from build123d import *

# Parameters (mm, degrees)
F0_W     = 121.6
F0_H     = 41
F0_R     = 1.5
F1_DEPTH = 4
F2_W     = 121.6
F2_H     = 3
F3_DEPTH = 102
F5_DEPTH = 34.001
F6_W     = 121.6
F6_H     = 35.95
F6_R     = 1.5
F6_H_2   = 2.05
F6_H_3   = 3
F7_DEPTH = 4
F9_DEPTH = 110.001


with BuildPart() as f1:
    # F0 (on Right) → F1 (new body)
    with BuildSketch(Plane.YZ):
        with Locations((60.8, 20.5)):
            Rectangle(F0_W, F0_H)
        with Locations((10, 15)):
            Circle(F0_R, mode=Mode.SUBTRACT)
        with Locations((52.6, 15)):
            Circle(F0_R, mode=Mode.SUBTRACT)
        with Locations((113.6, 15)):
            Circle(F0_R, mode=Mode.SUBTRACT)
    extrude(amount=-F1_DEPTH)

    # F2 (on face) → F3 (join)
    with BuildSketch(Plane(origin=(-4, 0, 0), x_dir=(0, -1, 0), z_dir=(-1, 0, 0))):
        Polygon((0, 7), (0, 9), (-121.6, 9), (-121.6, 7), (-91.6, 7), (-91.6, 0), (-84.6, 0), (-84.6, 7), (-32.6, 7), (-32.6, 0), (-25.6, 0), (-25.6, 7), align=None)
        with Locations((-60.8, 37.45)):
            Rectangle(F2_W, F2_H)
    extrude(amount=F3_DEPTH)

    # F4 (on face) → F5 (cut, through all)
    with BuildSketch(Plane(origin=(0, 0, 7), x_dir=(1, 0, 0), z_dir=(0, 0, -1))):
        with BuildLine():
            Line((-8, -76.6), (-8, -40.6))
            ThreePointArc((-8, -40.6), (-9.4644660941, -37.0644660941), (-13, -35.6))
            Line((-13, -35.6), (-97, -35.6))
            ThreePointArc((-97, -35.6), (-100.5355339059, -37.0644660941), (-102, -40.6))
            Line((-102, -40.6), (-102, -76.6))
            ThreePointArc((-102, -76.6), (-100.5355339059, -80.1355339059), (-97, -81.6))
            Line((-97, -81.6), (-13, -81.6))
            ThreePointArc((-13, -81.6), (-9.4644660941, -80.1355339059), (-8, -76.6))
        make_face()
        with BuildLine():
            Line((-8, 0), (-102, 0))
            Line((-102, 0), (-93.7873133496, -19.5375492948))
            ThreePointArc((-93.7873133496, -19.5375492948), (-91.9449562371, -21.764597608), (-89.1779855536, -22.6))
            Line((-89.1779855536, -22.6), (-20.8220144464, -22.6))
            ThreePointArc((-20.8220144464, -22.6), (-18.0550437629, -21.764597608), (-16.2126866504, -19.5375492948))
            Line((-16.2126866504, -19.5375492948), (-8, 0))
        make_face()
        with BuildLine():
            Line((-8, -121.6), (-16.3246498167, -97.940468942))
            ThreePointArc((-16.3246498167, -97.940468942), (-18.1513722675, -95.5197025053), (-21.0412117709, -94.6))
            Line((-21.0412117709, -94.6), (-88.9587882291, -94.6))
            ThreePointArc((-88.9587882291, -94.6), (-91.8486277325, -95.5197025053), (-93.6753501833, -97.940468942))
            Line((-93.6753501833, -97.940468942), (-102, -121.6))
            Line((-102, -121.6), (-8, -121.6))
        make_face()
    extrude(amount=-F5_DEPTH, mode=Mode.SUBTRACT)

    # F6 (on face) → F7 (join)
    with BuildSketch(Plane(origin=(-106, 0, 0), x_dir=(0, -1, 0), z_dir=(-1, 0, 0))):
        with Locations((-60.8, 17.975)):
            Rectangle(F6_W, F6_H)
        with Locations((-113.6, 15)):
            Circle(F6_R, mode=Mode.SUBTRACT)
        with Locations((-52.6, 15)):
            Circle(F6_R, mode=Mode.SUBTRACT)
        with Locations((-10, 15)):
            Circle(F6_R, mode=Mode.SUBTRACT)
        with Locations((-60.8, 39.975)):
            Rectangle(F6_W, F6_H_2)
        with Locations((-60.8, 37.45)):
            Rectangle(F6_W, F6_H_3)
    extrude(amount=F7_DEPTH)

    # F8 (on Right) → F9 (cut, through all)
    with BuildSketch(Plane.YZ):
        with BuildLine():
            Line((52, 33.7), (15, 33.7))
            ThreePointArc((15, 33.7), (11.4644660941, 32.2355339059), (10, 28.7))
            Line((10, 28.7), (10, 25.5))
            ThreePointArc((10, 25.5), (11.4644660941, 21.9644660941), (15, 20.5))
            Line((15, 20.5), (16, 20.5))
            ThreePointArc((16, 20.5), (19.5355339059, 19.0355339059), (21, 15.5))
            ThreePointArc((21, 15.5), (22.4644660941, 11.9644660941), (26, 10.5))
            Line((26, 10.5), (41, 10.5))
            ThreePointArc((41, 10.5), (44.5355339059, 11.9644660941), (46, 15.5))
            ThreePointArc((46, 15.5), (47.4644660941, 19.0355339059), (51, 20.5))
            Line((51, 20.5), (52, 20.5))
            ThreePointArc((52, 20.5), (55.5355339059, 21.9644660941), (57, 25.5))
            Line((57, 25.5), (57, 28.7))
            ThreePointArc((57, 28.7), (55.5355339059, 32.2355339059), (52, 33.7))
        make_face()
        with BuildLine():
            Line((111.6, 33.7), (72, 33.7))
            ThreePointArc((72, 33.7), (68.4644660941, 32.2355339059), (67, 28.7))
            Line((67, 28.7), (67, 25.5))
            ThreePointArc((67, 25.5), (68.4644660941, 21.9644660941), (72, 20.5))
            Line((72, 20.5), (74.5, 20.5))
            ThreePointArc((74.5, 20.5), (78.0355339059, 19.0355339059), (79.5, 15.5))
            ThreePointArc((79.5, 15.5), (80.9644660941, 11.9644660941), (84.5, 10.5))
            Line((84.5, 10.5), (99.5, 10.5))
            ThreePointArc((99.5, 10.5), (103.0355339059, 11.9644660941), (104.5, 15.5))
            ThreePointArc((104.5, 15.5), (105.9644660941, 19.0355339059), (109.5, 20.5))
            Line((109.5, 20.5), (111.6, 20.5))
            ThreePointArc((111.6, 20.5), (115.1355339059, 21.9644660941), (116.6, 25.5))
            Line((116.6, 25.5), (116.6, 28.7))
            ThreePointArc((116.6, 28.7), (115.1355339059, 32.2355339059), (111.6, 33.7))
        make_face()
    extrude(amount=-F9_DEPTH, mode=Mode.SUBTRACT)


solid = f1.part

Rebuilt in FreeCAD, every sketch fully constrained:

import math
import FreeCAD as App
import Part
import Sketcher
from FreeCAD import Vector
Q = App.Units.Quantity


def add_polygon(sketch, points):
    """Adds a closed chain of lines whose ends are joined by coincident constraints."""
    first, n = sketch.GeometryCount, len(points)
    for a, b in zip(points, points[1:] + points[:1]):
        sketch.addGeometry(Part.LineSegment(App.Vector(*a, 0), App.Vector(*b, 0)), False)
    for i in range(n):
        sketch.addConstraint(Sketcher.Constraint("Coincident", first + i, 2, first + (i + 1) % n, 1))

doc = App.newDocument("Part")
body = doc.addObject("PartDesign::Body", "Body")

sketch1 = body.newObject("Sketcher::SketchObject", "Sketch")
sketch1.AttachmentSupport = (doc.getObject("YZ_Plane"), [""])
sketch1.MapMode = "FlatFace"
add_polygon(sketch1, [(0, 41), (0, 0), (121.6, 0), (121.6, 41)])
sketch1.addGeometry(Part.Circle(Vector(10, 15, 0), Vector(0, 0, 1), 1.5), False)
sketch1.addGeometry(Part.Circle(Vector(52.6, 15, 0), Vector(0, 0, 1), 1.5), False)
sketch1.addGeometry(Part.Circle(Vector(113.6, 15, 0), Vector(0, 0, 1), 1.5), False)
sketch1.addConstraint(Sketcher.Constraint("Vertical", 0))
sketch1.addConstraint(Sketcher.Constraint("Horizontal", 1))
sketch1.addConstraint(Sketcher.Constraint("Vertical", 2))
sketch1.addConstraint(Sketcher.Constraint("Horizontal", 3))
sketch1.addConstraint(Sketcher.Constraint("Coincident", 0, 2, -1, 1))
sketch1.addConstraint(Sketcher.Constraint("Equal", 4, 5))
sketch1.addConstraint(Sketcher.Constraint("Equal", 5, 6))
sketch1.addConstraint(Sketcher.Constraint("Horizontal", 4, 3, 5, 3))
sketch1.addConstraint(Sketcher.Constraint("Horizontal", 5, 3, 6, 3))
sketch1.addConstraint(Sketcher.Constraint("Diameter", 4, Q("3 mm")))
sketch1.addConstraint(Sketcher.Constraint("DistanceY", 0, 2, 0, 1, Q("41 mm")))
sketch1.addConstraint(Sketcher.Constraint("DistanceX", 1, 1, 1, 2, Q("121.6 mm")))
sketch1.addConstraint(Sketcher.Constraint("DistanceX", -1, 1, 4, 3, Q("10 mm")))
sketch1.addConstraint(Sketcher.Constraint("DistanceY", -1, 1, 4, 3, Q("15 mm")))
sketch1.addConstraint(Sketcher.Constraint("DistanceX", 5, 3, 6, 3, Q("61 mm")))
sketch1.addConstraint(Sketcher.Constraint("DistanceX", 6, 3, 1, 2, Q("8 mm")))
pad1 = body.newObject("PartDesign::Pad", "Pad")
pad1.Profile = sketch1
pad1.Length = 4
pad1.Reversed = True

sketch2 = body.newObject("Sketcher::SketchObject", "Sketch001")
sketch2.AttachmentSupport = (doc.getObject("YZ_Plane"), [""])
sketch2.MapMode = "FlatFace"
sketch2.AttachmentOffset = App.Placement(Vector(0, 0, -4), App.Rotation())
add_polygon(sketch2, [(0, 7), (0, 9), (121.6, 9), (121.6, 7), (91.6, 7), (91.6, 0), (84.6, 0), (84.6, 7), (32.6, 7), (32.6, 0), (25.6, 0), (25.6, 7)])
add_polygon(sketch2, [(121.6, 38.95), (121.6, 35.95), (0, 35.95), (0, 38.95)])
sketch2.addConstraint(Sketcher.Constraint("Vertical", 0))
sketch2.addConstraint(Sketcher.Constraint("Horizontal", 1))
sketch2.addConstraint(Sketcher.Constraint("Vertical", 2))
sketch2.addConstraint(Sketcher.Constraint("Horizontal", 3))
sketch2.addConstraint(Sketcher.Constraint("Vertical", 4))
sketch2.addConstraint(Sketcher.Constraint("Horizontal", 5))
sketch2.addConstraint(Sketcher.Constraint("Vertical", 6))
sketch2.addConstraint(Sketcher.Constraint("Horizontal", 7))
sketch2.addConstraint(Sketcher.Constraint("Vertical", 8))
sketch2.addConstraint(Sketcher.Constraint("Horizontal", 9))
sketch2.addConstraint(Sketcher.Constraint("Vertical", 10))
sketch2.addConstraint(Sketcher.Constraint("Horizontal", 11))
sketch2.addConstraint(Sketcher.Constraint("Vertical", 12))
sketch2.addConstraint(Sketcher.Constraint("Horizontal", 13))
sketch2.addConstraint(Sketcher.Constraint("Vertical", 14))
sketch2.addConstraint(Sketcher.Constraint("Horizontal", 15))
sketch2.addConstraint(Sketcher.Constraint("PointOnObject", 0, 2, -2))
sketch2.addConstraint(Sketcher.Constraint("PointOnObject", 4, 2, -1))
sketch2.addConstraint(Sketcher.Constraint("PointOnObject", 8, 2, -1))
sketch2.addConstraint(Sketcher.Constraint("PointOnObject", 13, 2, -2))
sketch2.addConstraint(Sketcher.Constraint("Horizontal", 3, 2, 6, 2))
sketch2.addConstraint(Sketcher.Constraint("Horizontal", 7, 2, 10, 2))
sketch2.addConstraint(Sketcher.Constraint("Vertical", 2, 2, 12, 2))
sketch2.addConstraint(Sketcher.Constraint("Equal", 5, 9))
sketch2.addConstraint(Sketcher.Constraint("Equal", 9, 4))
sketch2.addConstraint(Sketcher.Constraint("DistanceX", 3, 2, 3, 1, Q("30 mm")))
sketch2.addConstraint(Sketcher.Constraint("DistanceX", 5, 2, 5, 1, Q("7 mm")))
sketch2.addConstraint(Sketcher.Constraint("DistanceX", 7, 2, 7, 1, Q("52 mm")))
sketch2.addConstraint(Sketcher.Constraint("DistanceY", 0, 1, 0, 2, Q("2 mm")))
sketch2.addConstraint(Sketcher.Constraint("DistanceY", 12, 2, 12, 1, Q("3 mm")))
sketch2.addConstraint(Sketcher.Constraint("DistanceX", 1, 1, 1, 2, Q("121.6 mm")))
sketch2.addConstraint(Sketcher.Constraint("DistanceY", -1, 1, 12, 2, Q("35.95 mm")))
pad2 = body.newObject("PartDesign::Pad", "Pad001")
pad2.Profile = sketch2
pad2.Length = 102
pad2.Reversed = True

sketch3 = body.newObject("Sketcher::SketchObject", "Sketch002")
sketch3.AttachmentSupport = (doc.getObject("XY_Plane"), [""])
sketch3.MapMode = "FlatFace"
sketch3.AttachmentOffset = App.Placement(Vector(0, 0, 7), App.Rotation())
sketch3.addGeometry(Part.LineSegment(Vector(-8, 76.6, 0), Vector(-8, 40.6, 0)), False)
sketch3.addGeometry(Part.ArcOfCircle(Part.Circle(Vector(-13, 40.6, 0), Vector(0, 0, 1), 5), math.radians(-90), math.radians(0)), False)
sketch3.addGeometry(Part.LineSegment(Vector(-13, 35.6, 0), Vector(-97, 35.6, 0)), False)
sketch3.addGeometry(Part.ArcOfCircle(Part.Circle(Vector(-97, 40.6, 0), Vector(0, 0, 1), 5), math.radians(180), math.radians(270)), False)
sketch3.addGeometry(Part.LineSegment(Vector(-102, 40.6, 0), Vector(-102, 76.6, 0)), False)
sketch3.addGeometry(Part.ArcOfCircle(Part.Circle(Vector(-97, 76.6, 0), Vector(0, 0, 1), 5), math.radians(90), math.radians(180)), False)
sketch3.addGeometry(Part.LineSegment(Vector(-97, 81.6, 0), Vector(-13, 81.6, 0)), False)
sketch3.addGeometry(Part.ArcOfCircle(Part.Circle(Vector(-13, 76.6, 0), Vector(0, 0, 1), 5), math.radians(0), math.radians(90)), False)
sketch3.addGeometry(Part.LineSegment(Vector(-8, 0, 0), Vector(-102, 0, 0)), False)
sketch3.addGeometry(Part.LineSegment(Vector(-102, 0, 0), Vector(-93.787313, 19.537549, 0)), False)
sketch3.addGeometry(Part.ArcOfCircle(Part.Circle(Vector(-89.177986, 17.6, 0), Vector(0, 0, 1), 5), math.radians(90), math.radians(157.200356)), False)
sketch3.addGeometry(Part.LineSegment(Vector(-89.177986, 22.6, 0), Vector(-20.822014, 22.6, 0)), False)
sketch3.addGeometry(Part.ArcOfCircle(Part.Circle(Vector(-20.822014, 17.6, 0), Vector(0, 0, 1), 5), math.radians(22.799644), math.radians(90)), False)
sketch3.addGeometry(Part.LineSegment(Vector(-16.212687, 19.537549, 0), Vector(-8, 0, 0)), False)
sketch3.addGeometry(Part.LineSegment(Vector(-8, 121.6, 0), Vector(-16.32465, 97.940469, 0)), False)
sketch3.addGeometry(Part.ArcOfCircle(Part.Circle(Vector(-21.041212, 99.6, 0), Vector(0, 0, 1), 5), math.radians(-90), math.radians(-19.384516)), False)
sketch3.addGeometry(Part.LineSegment(Vector(-21.041212, 94.6, 0), Vector(-88.958788, 94.6, 0)), False)
sketch3.addGeometry(Part.ArcOfCircle(Part.Circle(Vector(-88.958788, 99.6, 0), Vector(0, 0, 1), 5), math.radians(-160.615484), math.radians(-90)), False)
sketch3.addGeometry(Part.LineSegment(Vector(-93.67535, 97.940469, 0), Vector(-102, 121.6, 0)), False)
sketch3.addGeometry(Part.LineSegment(Vector(-102, 121.6, 0), Vector(-8, 121.6, 0)), False)
sketch3.addConstraint(Sketcher.Constraint("Tangent", 0, 2, 1, 2))
sketch3.addConstraint(Sketcher.Constraint("Tangent", 1, 1, 2, 1))
sketch3.addConstraint(Sketcher.Constraint("Tangent", 2, 2, 3, 2))
sketch3.addConstraint(Sketcher.Constraint("Tangent", 3, 1, 4, 1))
sketch3.addConstraint(Sketcher.Constraint("Tangent", 4, 2, 5, 2))
sketch3.addConstraint(Sketcher.Constraint("Tangent", 5, 1, 6, 1))
sketch3.addConstraint(Sketcher.Constraint("Tangent", 6, 2, 7, 2))
sketch3.addConstraint(Sketcher.Constraint("Tangent", 7, 1, 0, 1))
sketch3.addConstraint(Sketcher.Constraint("Coincident", 8, 2, 9, 1))
sketch3.addConstraint(Sketcher.Constraint("Tangent", 9, 2, 10, 2))
sketch3.addConstraint(Sketcher.Constraint("Tangent", 10, 1, 11, 1))
sketch3.addConstraint(Sketcher.Constraint("Tangent", 11, 2, 12, 2))
sketch3.addConstraint(Sketcher.Constraint("Tangent", 12, 1, 13, 1))
sketch3.addConstraint(Sketcher.Constraint("Coincident", 13, 2, 8, 1))
sketch3.addConstraint(Sketcher.Constraint("Tangent", 14, 2, 15, 2))
sketch3.addConstraint(Sketcher.Constraint("Tangent", 15, 1, 16, 1))
sketch3.addConstraint(Sketcher.Constraint("Tangent", 16, 2, 17, 2))
sketch3.addConstraint(Sketcher.Constraint("Tangent", 17, 1, 18, 1))
sketch3.addConstraint(Sketcher.Constraint("Coincident", 18, 2, 19, 1))
sketch3.addConstraint(Sketcher.Constraint("Coincident", 19, 2, 14, 1))
sketch3.addConstraint(Sketcher.Constraint("Vertical", 0))
sketch3.addConstraint(Sketcher.Constraint("Horizontal", 2))
sketch3.addConstraint(Sketcher.Constraint("Vertical", 4))
sketch3.addConstraint(Sketcher.Constraint("Horizontal", 6))
sketch3.addConstraint(Sketcher.Constraint("Horizontal", 8))
sketch3.addConstraint(Sketcher.Constraint("Horizontal", 11))
sketch3.addConstraint(Sketcher.Constraint("Horizontal", 16))
sketch3.addConstraint(Sketcher.Constraint("Horizontal", 19))
sketch3.addConstraint(Sketcher.Constraint("Equal", 1, 3))
sketch3.addConstraint(Sketcher.Constraint("Equal", 3, 5))
sketch3.addConstraint(Sketcher.Constraint("Equal", 5, 7))
sketch3.addConstraint(Sketcher.Constraint("Equal", 7, 10))
sketch3.addConstraint(Sketcher.Constraint("Equal", 10, 12))
sketch3.addConstraint(Sketcher.Constraint("Equal", 12, 15))
sketch3.addConstraint(Sketcher.Constraint("Equal", 15, 17))
sketch3.addConstraint(Sketcher.Constraint("PointOnObject", 8, 2, -1))
sketch3.addConstraint(Sketcher.Constraint("Horizontal", 9, 2, 12, 1))
sketch3.addConstraint(Sketcher.Constraint("Horizontal", 14, 2, 17, 1))
sketch3.addConstraint(Sketcher.Constraint("Vertical", 4, 2, 8, 2))
sketch3.addConstraint(Sketcher.Constraint("Vertical", 7, 1, 13, 2))
sketch3.addConstraint(Sketcher.Constraint("Vertical", 8, 2, 18, 2))
sketch3.addConstraint(Sketcher.Constraint("Vertical", 13, 2, 19, 2))
sketch3.addConstraint(Sketcher.Constraint("Radius", 1, Q("5 mm")))
sketch3.addConstraint(Sketcher.Constraint("DistanceX", 2, 2, 2, 1, Q("84 mm")))
sketch3.addConstraint(Sketcher.Constraint("DistanceY", 0, 2, 0, 1, Q("36 mm")))
sketch3.addConstraint(Sketcher.Constraint("DistanceX", 1, 3, -1, 1, Q("13 mm")))
sketch3.addConstraint(Sketcher.Constraint("DistanceY", 10, 3, 3, 3, Q("23 mm")))
sketch3.addConstraint(Sketcher.Constraint("DistanceY", 7, 3, 15, 3, Q("23 mm")))
sketch3.addConstraint(Sketcher.Constraint("DistanceY", 17, 3, 18, 2, Q("22 mm")))
sketch3.addConstraint(Sketcher.Constraint("DistanceY", -1, 1, 1, 3, Q("40.6 mm")))
sketch3.addConstraint(Sketcher.Constraint("DistanceX", 11, 1, 11, 2, Q("68.355971 mm")))
sketch3.addConstraint(Sketcher.Constraint("Distance", 14, Q("25.081332 mm")))
pocket1 = body.newObject("PartDesign::Pocket", "Pocket")
pocket1.Profile = sketch3
pocket1.Type = "ThroughAll"
pocket1.Reversed = True

sketch4 = body.newObject("Sketcher::SketchObject", "Sketch003")
sketch4.AttachmentSupport = (doc.getObject("YZ_Plane"), [""])
sketch4.MapMode = "FlatFace"
sketch4.AttachmentOffset = App.Placement(Vector(0, 0, -106), App.Rotation())
add_polygon(sketch4, [(121.6, 0), (0, 0), (0, 41), (121.6, 41)])
sketch4.addGeometry(Part.Circle(Vector(113.6, 15, 0), Vector(0, 0, 1), 1.5), False)
sketch4.addGeometry(Part.Circle(Vector(52.6, 15, 0), Vector(0, 0, 1), 1.5), False)
sketch4.addGeometry(Part.Circle(Vector(10, 15, 0), Vector(0, 0, 1), 1.5), False)
sketch4.addConstraint(Sketcher.Constraint("Horizontal", 0))
sketch4.addConstraint(Sketcher.Constraint("Vertical", 1))
sketch4.addConstraint(Sketcher.Constraint("Horizontal", 2))
sketch4.addConstraint(Sketcher.Constraint("Vertical", 3))
sketch4.addConstraint(Sketcher.Constraint("Coincident", 0, 2, -1, 1))
sketch4.addConstraint(Sketcher.Constraint("Equal", 4, 5))
sketch4.addConstraint(Sketcher.Constraint("Equal", 5, 6))
sketch4.addConstraint(Sketcher.Constraint("Horizontal", 4, 3, 5, 3))
sketch4.addConstraint(Sketcher.Constraint("Horizontal", 5, 3, 6, 3))
sketch4.addConstraint(Sketcher.Constraint("Diameter", 4, Q("3 mm")))
sketch4.addConstraint(Sketcher.Constraint("DistanceY", 1, 1, 1, 2, Q("41 mm")))
sketch4.addConstraint(Sketcher.Constraint("DistanceX", 0, 2, 0, 1, Q("121.6 mm")))
sketch4.addConstraint(Sketcher.Constraint("DistanceY", -1, 1, 4, 3, Q("15 mm")))
sketch4.addConstraint(Sketcher.Constraint("DistanceX", -1, 1, 6, 3, Q("10 mm")))
sketch4.addConstraint(Sketcher.Constraint("DistanceX", 5, 3, 4, 3, Q("61 mm")))
sketch4.addConstraint(Sketcher.Constraint("DistanceX", 4, 3, 2, 2, Q("8 mm")))
pad3 = body.newObject("PartDesign::Pad", "Pad002")
pad3.Profile = sketch4
pad3.Length = 4
pad3.Reversed = True

sketch5 = body.newObject("Sketcher::SketchObject", "Sketch004")
sketch5.AttachmentSupport = (doc.getObject("YZ_Plane"), [""])
sketch5.MapMode = "FlatFace"
sketch5.addGeometry(Part.LineSegment(Vector(52, 33.7, 0), Vector(15, 33.7, 0)), False)
sketch5.addGeometry(Part.ArcOfCircle(Part.Circle(Vector(15, 28.7, 0), Vector(0, 0, 1), 5), math.radians(90), math.radians(180)), False)
sketch5.addGeometry(Part.LineSegment(Vector(10, 28.7, 0), Vector(10, 25.5, 0)), False)
sketch5.addGeometry(Part.ArcOfCircle(Part.Circle(Vector(15, 25.5, 0), Vector(0, 0, 1), 5), math.radians(180), math.radians(270)), False)
sketch5.addGeometry(Part.LineSegment(Vector(15, 20.5, 0), Vector(16, 20.5, 0)), False)
sketch5.addGeometry(Part.ArcOfCircle(Part.Circle(Vector(16, 15.5, 0), Vector(0, 0, 1), 5), math.radians(0), math.radians(90)), False)
sketch5.addGeometry(Part.ArcOfCircle(Part.Circle(Vector(26, 15.5, 0), Vector(0, 0, 1), 5), math.radians(180), math.radians(270)), False)
sketch5.addGeometry(Part.LineSegment(Vector(26, 10.5, 0), Vector(41, 10.5, 0)), False)
sketch5.addGeometry(Part.ArcOfCircle(Part.Circle(Vector(41, 15.5, 0), Vector(0, 0, 1), 5), math.radians(-90), math.radians(0)), False)
sketch5.addGeometry(Part.ArcOfCircle(Part.Circle(Vector(51, 15.5, 0), Vector(0, 0, 1), 5), math.radians(90), math.radians(180)), False)
sketch5.addGeometry(Part.LineSegment(Vector(51, 20.5, 0), Vector(52, 20.5, 0)), False)
sketch5.addGeometry(Part.ArcOfCircle(Part.Circle(Vector(52, 25.5, 0), Vector(0, 0, 1), 5), math.radians(-90), math.radians(0)), False)
sketch5.addGeometry(Part.LineSegment(Vector(57, 25.5, 0), Vector(57, 28.7, 0)), False)
sketch5.addGeometry(Part.ArcOfCircle(Part.Circle(Vector(52, 28.7, 0), Vector(0, 0, 1), 5), math.radians(0), math.radians(90)), False)
sketch5.addGeometry(Part.LineSegment(Vector(111.6, 33.7, 0), Vector(72, 33.7, 0)), False)
sketch5.addGeometry(Part.ArcOfCircle(Part.Circle(Vector(72, 28.7, 0), Vector(0, 0, 1), 5), math.radians(90), math.radians(180)), False)
sketch5.addGeometry(Part.LineSegment(Vector(67, 28.7, 0), Vector(67, 25.5, 0)), False)
sketch5.addGeometry(Part.ArcOfCircle(Part.Circle(Vector(72, 25.5, 0), Vector(0, 0, 1), 5), math.radians(180), math.radians(270)), False)
sketch5.addGeometry(Part.LineSegment(Vector(72, 20.5, 0), Vector(74.5, 20.5, 0)), False)
sketch5.addGeometry(Part.ArcOfCircle(Part.Circle(Vector(74.5, 15.5, 0), Vector(0, 0, 1), 5), math.radians(0), math.radians(90)), False)
sketch5.addGeometry(Part.ArcOfCircle(Part.Circle(Vector(84.5, 15.5, 0), Vector(0, 0, 1), 5), math.radians(180), math.radians(270)), False)
sketch5.addGeometry(Part.LineSegment(Vector(84.5, 10.5, 0), Vector(99.5, 10.5, 0)), False)
sketch5.addGeometry(Part.ArcOfCircle(Part.Circle(Vector(99.5, 15.5, 0), Vector(0, 0, 1), 5), math.radians(-90), math.radians(0)), False)
sketch5.addGeometry(Part.ArcOfCircle(Part.Circle(Vector(109.5, 15.5, 0), Vector(0, 0, 1), 5), math.radians(90), math.radians(180)), False)
sketch5.addGeometry(Part.LineSegment(Vector(109.5, 20.5, 0), Vector(111.6, 20.5, 0)), False)
sketch5.addGeometry(Part.ArcOfCircle(Part.Circle(Vector(111.6, 25.5, 0), Vector(0, 0, 1), 5), math.radians(-90), math.radians(0)), False)
sketch5.addGeometry(Part.LineSegment(Vector(116.6, 25.5, 0), Vector(116.6, 28.7, 0)), False)
sketch5.addGeometry(Part.ArcOfCircle(Part.Circle(Vector(111.6, 28.7, 0), Vector(0, 0, 1), 5), math.radians(0), math.radians(90)), False)
sketch5.addConstraint(Sketcher.Constraint("Tangent", 0, 2, 1, 1))
sketch5.addConstraint(Sketcher.Constraint("Tangent", 1, 2, 2, 1))
sketch5.addConstraint(Sketcher.Constraint("Tangent", 2, 2, 3, 1))
sketch5.addConstraint(Sketcher.Constraint("Tangent", 3, 2, 4, 1))
sketch5.addConstraint(Sketcher.Constraint("Tangent", 4, 2, 5, 2))
sketch5.addConstraint(Sketcher.Constraint("Tangent", 5, 1, 6, 1))
sketch5.addConstraint(Sketcher.Constraint("Tangent", 6, 2, 7, 1))
sketch5.addConstraint(Sketcher.Constraint("Tangent", 7, 2, 8, 1))
sketch5.addConstraint(Sketcher.Constraint("Tangent", 8, 2, 9, 2))
sketch5.addConstraint(Sketcher.Constraint("Tangent", 9, 1, 10, 1))
sketch5.addConstraint(Sketcher.Constraint("Tangent", 10, 2, 11, 1))
sketch5.addConstraint(Sketcher.Constraint("Tangent", 11, 2, 12, 1))
sketch5.addConstraint(Sketcher.Constraint("Tangent", 12, 2, 13, 1))
sketch5.addConstraint(Sketcher.Constraint("Tangent", 13, 2, 0, 1))
sketch5.addConstraint(Sketcher.Constraint("Tangent", 14, 2, 15, 1))
sketch5.addConstraint(Sketcher.Constraint("Tangent", 15, 2, 16, 1))
sketch5.addConstraint(Sketcher.Constraint("Tangent", 16, 2, 17, 1))
sketch5.addConstraint(Sketcher.Constraint("Tangent", 17, 2, 18, 1))
sketch5.addConstraint(Sketcher.Constraint("Tangent", 18, 2, 19, 2))
sketch5.addConstraint(Sketcher.Constraint("Tangent", 19, 1, 20, 1))
sketch5.addConstraint(Sketcher.Constraint("Tangent", 20, 2, 21, 1))
sketch5.addConstraint(Sketcher.Constraint("Tangent", 21, 2, 22, 1))
sketch5.addConstraint(Sketcher.Constraint("Tangent", 22, 2, 23, 2))
sketch5.addConstraint(Sketcher.Constraint("Tangent", 23, 1, 24, 1))
sketch5.addConstraint(Sketcher.Constraint("Tangent", 24, 2, 25, 1))
sketch5.addConstraint(Sketcher.Constraint("Tangent", 25, 2, 26, 1))
sketch5.addConstraint(Sketcher.Constraint("Tangent", 26, 2, 27, 1))
sketch5.addConstraint(Sketcher.Constraint("Tangent", 27, 2, 14, 1))
sketch5.addConstraint(Sketcher.Constraint("Horizontal", 0))
sketch5.addConstraint(Sketcher.Constraint("Vertical", 2))
sketch5.addConstraint(Sketcher.Constraint("Horizontal", 4))
sketch5.addConstraint(Sketcher.Constraint("Horizontal", 7))
sketch5.addConstraint(Sketcher.Constraint("Horizontal", 10))
sketch5.addConstraint(Sketcher.Constraint("Vertical", 12))
sketch5.addConstraint(Sketcher.Constraint("Horizontal", 14))
sketch5.addConstraint(Sketcher.Constraint("Vertical", 16))
sketch5.addConstraint(Sketcher.Constraint("Horizontal", 18))
sketch5.addConstraint(Sketcher.Constraint("Horizontal", 21))
sketch5.addConstraint(Sketcher.Constraint("Horizontal", 24))
sketch5.addConstraint(Sketcher.Constraint("Vertical", 26))
sketch5.addConstraint(Sketcher.Constraint("Equal", 1, 3))
sketch5.addConstraint(Sketcher.Constraint("Equal", 3, 5))
sketch5.addConstraint(Sketcher.Constraint("Equal", 5, 6))
sketch5.addConstraint(Sketcher.Constraint("Equal", 6, 8))
sketch5.addConstraint(Sketcher.Constraint("Equal", 8, 9))
sketch5.addConstraint(Sketcher.Constraint("Equal", 9, 11))
sketch5.addConstraint(Sketcher.Constraint("Equal", 11, 13))
sketch5.addConstraint(Sketcher.Constraint("Equal", 13, 15))
sketch5.addConstraint(Sketcher.Constraint("Equal", 15, 17))
sketch5.addConstraint(Sketcher.Constraint("Equal", 17, 19))
sketch5.addConstraint(Sketcher.Constraint("Equal", 19, 20))
sketch5.addConstraint(Sketcher.Constraint("Equal", 20, 22))
sketch5.addConstraint(Sketcher.Constraint("Equal", 22, 23))
sketch5.addConstraint(Sketcher.Constraint("Equal", 23, 25))
sketch5.addConstraint(Sketcher.Constraint("Equal", 25, 27))
sketch5.addConstraint(Sketcher.Constraint("Horizontal", 5, 3, 6, 3))
sketch5.addConstraint(Sketcher.Constraint("Horizontal", 8, 3, 9, 3))
sketch5.addConstraint(Sketcher.Constraint("Horizontal", 13, 3, 15, 3))
sketch5.addConstraint(Sketcher.Constraint("Horizontal", 11, 3, 17, 3))
sketch5.addConstraint(Sketcher.Constraint("Horizontal", 19, 3, 20, 3))
sketch5.addConstraint(Sketcher.Constraint("Horizontal", 22, 3, 23, 3))
sketch5.addConstraint(Sketcher.Constraint("Equal", 4, 10))
sketch5.addConstraint(Sketcher.Constraint("Equal", 7, 21))
sketch5.addConstraint(Sketcher.Constraint("Radius", 1, Q("5 mm")))
sketch5.addConstraint(Sketcher.Constraint("DistanceX", 0, 2, 0, 1, Q("37 mm")))
sketch5.addConstraint(Sketcher.Constraint("DistanceX", 4, 1, 4, 2, Q("1 mm")))
sketch5.addConstraint(Sketcher.Constraint("DistanceX", 14, 2, 14, 1, Q("39.6 mm")))
sketch5.addConstraint(Sketcher.Constraint("DistanceX", 18, 1, 18, 2, Q("2.5 mm")))
sketch5.addConstraint(Sketcher.Constraint("DistanceY", 2, 2, 2, 1, Q("3.2 mm")))
sketch5.addConstraint(Sketcher.Constraint("DistanceX", -1, 1, 1, 3, Q("15 mm")))
sketch5.addConstraint(Sketcher.Constraint("DistanceX", -1, 1, 15, 3, Q("72 mm")))
sketch5.addConstraint(Sketcher.Constraint("DistanceY", -1, 1, 1, 3, Q("28.7 mm")))
pocket2 = body.newObject("PartDesign::Pocket", "Pocket001")
pocket2.Profile = sketch5
pocket2.Type = "ThroughAll"

doc.recompute()
